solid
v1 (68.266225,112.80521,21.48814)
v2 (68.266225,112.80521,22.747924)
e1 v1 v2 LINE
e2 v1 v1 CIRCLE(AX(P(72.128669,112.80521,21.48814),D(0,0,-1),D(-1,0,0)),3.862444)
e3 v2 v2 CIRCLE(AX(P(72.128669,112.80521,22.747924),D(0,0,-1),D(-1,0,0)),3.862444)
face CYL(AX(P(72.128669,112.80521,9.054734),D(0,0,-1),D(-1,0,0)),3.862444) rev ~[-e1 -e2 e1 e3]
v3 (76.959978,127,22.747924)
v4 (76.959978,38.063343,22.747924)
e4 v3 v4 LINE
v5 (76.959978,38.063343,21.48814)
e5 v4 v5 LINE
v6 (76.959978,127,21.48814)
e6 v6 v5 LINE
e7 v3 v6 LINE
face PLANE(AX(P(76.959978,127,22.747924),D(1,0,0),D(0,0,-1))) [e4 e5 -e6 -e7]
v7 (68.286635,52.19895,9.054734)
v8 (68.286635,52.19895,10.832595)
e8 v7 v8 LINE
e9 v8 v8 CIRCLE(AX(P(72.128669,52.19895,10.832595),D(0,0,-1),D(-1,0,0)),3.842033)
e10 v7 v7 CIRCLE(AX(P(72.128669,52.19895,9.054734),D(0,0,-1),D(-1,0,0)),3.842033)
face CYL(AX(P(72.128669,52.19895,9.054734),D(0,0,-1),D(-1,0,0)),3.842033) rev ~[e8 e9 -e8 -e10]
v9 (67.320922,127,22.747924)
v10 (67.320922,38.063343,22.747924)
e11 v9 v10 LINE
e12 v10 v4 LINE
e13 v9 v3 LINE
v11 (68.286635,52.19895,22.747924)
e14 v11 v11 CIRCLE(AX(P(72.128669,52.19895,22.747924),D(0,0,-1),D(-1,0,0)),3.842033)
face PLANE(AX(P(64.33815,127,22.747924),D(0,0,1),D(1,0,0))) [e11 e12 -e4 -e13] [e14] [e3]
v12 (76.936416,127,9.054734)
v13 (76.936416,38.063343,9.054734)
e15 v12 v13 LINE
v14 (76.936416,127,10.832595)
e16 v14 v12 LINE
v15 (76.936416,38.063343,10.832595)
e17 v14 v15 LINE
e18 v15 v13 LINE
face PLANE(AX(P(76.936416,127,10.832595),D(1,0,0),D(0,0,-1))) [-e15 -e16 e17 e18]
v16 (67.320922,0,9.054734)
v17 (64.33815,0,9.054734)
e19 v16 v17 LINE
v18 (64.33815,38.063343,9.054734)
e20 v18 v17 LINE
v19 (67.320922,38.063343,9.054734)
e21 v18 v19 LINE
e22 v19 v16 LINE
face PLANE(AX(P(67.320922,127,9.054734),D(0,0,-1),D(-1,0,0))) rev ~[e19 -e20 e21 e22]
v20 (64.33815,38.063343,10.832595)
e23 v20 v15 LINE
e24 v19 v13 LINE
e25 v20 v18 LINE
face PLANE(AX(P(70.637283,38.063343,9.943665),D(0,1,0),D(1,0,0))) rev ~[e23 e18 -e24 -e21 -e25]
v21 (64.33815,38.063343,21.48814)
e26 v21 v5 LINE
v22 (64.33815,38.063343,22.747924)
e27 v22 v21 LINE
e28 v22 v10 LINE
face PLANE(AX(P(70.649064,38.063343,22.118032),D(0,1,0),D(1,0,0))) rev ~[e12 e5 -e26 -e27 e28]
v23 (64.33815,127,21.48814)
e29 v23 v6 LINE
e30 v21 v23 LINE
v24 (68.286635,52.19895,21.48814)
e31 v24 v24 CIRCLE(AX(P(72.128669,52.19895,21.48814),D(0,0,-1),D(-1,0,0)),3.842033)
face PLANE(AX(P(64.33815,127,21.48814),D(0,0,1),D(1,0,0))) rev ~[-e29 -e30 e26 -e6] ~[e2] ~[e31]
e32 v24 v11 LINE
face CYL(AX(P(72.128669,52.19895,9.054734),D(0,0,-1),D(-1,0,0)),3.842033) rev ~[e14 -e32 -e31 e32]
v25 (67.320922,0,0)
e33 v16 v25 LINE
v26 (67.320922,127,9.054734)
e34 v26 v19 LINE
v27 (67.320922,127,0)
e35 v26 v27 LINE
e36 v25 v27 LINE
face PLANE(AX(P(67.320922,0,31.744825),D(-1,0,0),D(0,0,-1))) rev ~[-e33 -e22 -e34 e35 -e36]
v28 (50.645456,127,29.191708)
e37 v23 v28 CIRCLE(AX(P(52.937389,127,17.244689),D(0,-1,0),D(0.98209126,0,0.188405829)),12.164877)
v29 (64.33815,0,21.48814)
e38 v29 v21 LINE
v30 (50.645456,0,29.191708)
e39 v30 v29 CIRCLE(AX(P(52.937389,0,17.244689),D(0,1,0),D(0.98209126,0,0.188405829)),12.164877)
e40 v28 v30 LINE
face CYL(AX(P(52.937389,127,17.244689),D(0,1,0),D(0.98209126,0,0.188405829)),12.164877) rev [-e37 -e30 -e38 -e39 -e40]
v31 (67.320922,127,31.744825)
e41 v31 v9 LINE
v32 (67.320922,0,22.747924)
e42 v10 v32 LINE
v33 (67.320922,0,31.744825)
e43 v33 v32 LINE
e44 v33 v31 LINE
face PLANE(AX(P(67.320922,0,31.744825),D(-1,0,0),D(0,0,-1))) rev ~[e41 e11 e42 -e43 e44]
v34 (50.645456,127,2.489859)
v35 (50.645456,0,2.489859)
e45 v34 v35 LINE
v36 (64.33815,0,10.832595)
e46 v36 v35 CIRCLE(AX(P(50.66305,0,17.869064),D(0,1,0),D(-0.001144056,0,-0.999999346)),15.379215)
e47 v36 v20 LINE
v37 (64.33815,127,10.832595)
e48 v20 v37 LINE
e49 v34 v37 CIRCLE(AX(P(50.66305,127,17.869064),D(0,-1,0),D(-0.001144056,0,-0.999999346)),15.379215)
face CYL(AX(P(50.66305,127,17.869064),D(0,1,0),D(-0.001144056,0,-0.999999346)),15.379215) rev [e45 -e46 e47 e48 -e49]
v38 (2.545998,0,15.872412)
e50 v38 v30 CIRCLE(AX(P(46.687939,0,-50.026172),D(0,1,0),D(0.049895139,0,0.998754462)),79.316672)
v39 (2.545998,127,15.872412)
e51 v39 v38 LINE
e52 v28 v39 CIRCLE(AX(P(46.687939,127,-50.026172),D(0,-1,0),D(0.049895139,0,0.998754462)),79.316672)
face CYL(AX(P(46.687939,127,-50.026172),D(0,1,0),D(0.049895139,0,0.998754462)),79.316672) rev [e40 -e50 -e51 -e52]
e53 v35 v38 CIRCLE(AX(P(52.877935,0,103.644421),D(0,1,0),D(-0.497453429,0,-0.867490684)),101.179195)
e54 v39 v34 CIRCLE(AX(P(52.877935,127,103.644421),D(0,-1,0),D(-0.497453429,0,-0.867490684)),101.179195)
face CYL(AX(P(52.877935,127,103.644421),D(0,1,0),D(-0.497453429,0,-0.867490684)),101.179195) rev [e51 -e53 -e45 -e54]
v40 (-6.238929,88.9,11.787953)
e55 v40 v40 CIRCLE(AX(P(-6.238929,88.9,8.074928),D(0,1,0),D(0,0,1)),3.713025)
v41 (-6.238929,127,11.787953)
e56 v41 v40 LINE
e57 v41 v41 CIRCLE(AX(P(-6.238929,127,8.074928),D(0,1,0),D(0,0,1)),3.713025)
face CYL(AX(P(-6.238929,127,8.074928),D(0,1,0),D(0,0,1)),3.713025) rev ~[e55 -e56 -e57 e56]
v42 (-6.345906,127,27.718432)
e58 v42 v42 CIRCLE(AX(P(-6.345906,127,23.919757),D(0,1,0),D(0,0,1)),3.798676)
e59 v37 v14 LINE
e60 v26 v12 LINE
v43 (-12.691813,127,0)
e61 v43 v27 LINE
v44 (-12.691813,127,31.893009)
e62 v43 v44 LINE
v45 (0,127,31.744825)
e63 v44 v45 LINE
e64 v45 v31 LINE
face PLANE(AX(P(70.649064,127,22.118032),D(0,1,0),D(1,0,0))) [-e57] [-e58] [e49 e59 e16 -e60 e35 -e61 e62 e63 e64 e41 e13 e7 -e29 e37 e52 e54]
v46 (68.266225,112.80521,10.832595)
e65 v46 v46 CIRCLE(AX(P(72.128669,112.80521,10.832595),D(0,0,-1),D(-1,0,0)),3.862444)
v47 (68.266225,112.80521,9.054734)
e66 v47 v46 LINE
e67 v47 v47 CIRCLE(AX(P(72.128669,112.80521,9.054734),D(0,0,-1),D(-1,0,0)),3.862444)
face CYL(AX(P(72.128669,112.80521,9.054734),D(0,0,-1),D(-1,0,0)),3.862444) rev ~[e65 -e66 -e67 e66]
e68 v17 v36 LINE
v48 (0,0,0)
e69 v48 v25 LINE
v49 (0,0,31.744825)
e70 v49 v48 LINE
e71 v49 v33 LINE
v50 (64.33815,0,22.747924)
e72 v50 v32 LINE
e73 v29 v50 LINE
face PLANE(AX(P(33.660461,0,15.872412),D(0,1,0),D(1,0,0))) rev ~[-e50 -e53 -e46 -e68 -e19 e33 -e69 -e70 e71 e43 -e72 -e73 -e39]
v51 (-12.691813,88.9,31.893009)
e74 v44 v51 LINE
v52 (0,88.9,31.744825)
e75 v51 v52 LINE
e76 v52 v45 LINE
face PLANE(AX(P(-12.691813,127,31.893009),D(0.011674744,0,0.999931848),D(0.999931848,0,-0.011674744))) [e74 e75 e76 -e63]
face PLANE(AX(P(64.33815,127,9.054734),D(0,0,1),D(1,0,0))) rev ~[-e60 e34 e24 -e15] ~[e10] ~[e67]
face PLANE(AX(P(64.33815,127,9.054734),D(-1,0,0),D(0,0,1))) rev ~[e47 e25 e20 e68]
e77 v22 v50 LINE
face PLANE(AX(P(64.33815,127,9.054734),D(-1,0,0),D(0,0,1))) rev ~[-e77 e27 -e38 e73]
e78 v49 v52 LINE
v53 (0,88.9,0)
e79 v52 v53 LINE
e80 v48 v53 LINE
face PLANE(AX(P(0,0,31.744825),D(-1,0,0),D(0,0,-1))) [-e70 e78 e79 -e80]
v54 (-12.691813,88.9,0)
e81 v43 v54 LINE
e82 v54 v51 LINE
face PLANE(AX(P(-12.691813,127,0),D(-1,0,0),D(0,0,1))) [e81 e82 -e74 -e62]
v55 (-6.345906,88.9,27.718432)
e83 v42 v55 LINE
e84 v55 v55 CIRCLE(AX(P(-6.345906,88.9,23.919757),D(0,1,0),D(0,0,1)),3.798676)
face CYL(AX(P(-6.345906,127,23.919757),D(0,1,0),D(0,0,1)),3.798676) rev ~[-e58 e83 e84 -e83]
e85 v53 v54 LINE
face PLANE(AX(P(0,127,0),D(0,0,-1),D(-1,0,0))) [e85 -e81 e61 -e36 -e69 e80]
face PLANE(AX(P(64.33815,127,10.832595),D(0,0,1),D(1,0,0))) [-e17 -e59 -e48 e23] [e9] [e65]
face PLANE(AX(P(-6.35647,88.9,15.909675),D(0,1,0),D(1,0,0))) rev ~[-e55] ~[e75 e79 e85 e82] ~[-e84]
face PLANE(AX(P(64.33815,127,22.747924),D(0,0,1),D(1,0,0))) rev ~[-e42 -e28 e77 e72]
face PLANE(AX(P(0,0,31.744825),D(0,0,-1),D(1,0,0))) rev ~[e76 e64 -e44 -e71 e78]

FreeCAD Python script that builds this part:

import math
import FreeCAD as App
import Part
import Sketcher

V = App.Vector
Q = App.Units.Quantity


def add_polygon(sketch, points):
    """Adds a closed chain of lines whose ends are joined by coincident constraints."""
    first, n = sketch.GeometryCount, len(points)
    for a, b in zip(points, points[1:] + points[:1]):
        sketch.addGeometry(Part.LineSegment(App.Vector(*a, 0), App.Vector(*b, 0)), False)
    for i in range(n):
        sketch.addConstraint(Sketcher.Constraint("Coincident", first + i, 2, first + (i + 1) % n, 1))

doc = App.newDocument("Part")
body = doc.addObject("PartDesign::Body", "Body")

# Sketch on XZ plane
sketch1 = body.newObject("Sketcher::SketchObject", "Sketch")
sketch1.AttachmentSupport = (doc.getObject("XZ_Plane"), [""])
sketch1.MapMode = "FlatFace"
add_polygon(sketch1, [(0, 0), (0, 31.744825), (67.320922, 31.744825), (67.320922, 0)])  # lines 0-3
sketch1.addConstraint([
    Sketcher.Constraint("Vertical", 0),
    Sketcher.Constraint("Horizontal", 1),
    Sketcher.Constraint("Vertical", 2),
    Sketcher.Constraint("Horizontal", 3),
    Sketcher.Constraint("Coincident", 3, 2, -1, 1),
    Sketcher.Constraint("DistanceX", 1, 1, 1, 2, 67.320922),
    Sketcher.Constraint("DistanceY", 0, 1, 0, 2, 31.744825),
])
pad1 = body.newObject("PartDesign::Pad", "Pad")
pad1.Profile = sketch1
pad1.Length = Q("5 in")
pad1.Reversed = True

# Sketch on XZ plane
sketch2 = body.newObject("Sketcher::SketchObject", "Sketch001")
sketch2.AttachmentSupport = (doc.getObject("XZ_Plane"), [""])
sketch2.MapMode = "FlatFace"
sketch2.AttachmentOffset = App.Placement(V(0, 0, -5 * 25.4), App.Rotation())
add_polygon(sketch2, [(0, 0), (-12.691813, 0), (-12.691813, 31.893009), (0, 31.744825)])  # lines 0-3
sketch2.addConstraint([
    Sketcher.Constraint("Horizontal", 0),
    Sketcher.Constraint("Vertical", 1),
    Sketcher.Constraint("Vertical", 3),
    Sketcher.Constraint("Coincident", 3, 2, -1, 1),
    Sketcher.Constraint("DistanceY", 1, 1, 1, 2, 31.893009),
    Sketcher.Constraint("DistanceX", 0, 2, 0, 1, 12.691813),
    Sketcher.Constraint("DistanceY", 3, 2, 3, 1, 31.744825),
])
pad2 = body.newObject("PartDesign::Pad", "Pad001")
pad2.Profile = sketch2
pad2.Length = Q("1.5 in")

# Sketch on XZ plane
sketch3 = body.newObject("Sketcher::SketchObject", "Sketch002")
sketch3.AttachmentSupport = (doc.getObject("XZ_Plane"), [""])
sketch3.MapMode = "FlatFace"
sketch3.AttachmentOffset = App.Placement(V(0, 0, -5 * 25.4), App.Rotation())
sketch3.addGeometry(Part.Circle(V(-6.345906, 23.919757, 0), V(0, 0, 1), 3.798676), False)
sketch3.addConstraint([
    Sketcher.Constraint("Diameter", 0, 7.597351),
    Sketcher.Constraint("DistanceX", 0, 3, -1, 1, 6.345906),
    Sketcher.Constraint("DistanceY", -1, 1, 0, 3, 23.919757),
])
pocket1 = body.newObject("PartDesign::Pocket", "Pocket")
pocket1.Profile = sketch3
pocket1.Length = Q("2.1 in")
pocket1.Reversed = True

# Sketch on XZ plane
sketch4 = body.newObject("Sketcher::SketchObject", "Sketch003")
sketch4.AttachmentSupport = (doc.getObject("XZ_Plane"), [""])
sketch4.MapMode = "FlatFace"
sketch4.AttachmentOffset = App.Placement(V(0, 0, -5 * 25.4), App.Rotation())
sketch4.addGeometry(Part.Circle(V(-6.238929, 8.074928, 0), V(0, 0, 1), 3.713025), False)
sketch4.addConstraint([
    Sketcher.Constraint("Diameter", 0, 7.426051),
    Sketcher.Constraint("DistanceX", 0, 3, -1, 1, 6.238929),
    Sketcher.Constraint("DistanceY", -1, 1, 0, 3, 8.074928),
])
pocket2 = body.newObject("PartDesign::Pocket", "Pocket001")
pocket2.Profile = sketch4
pocket2.Length = Q("2.87 in")
pocket2.Reversed = True

# Sketch on XZ plane
sketch5 = body.newObject("Sketcher::SketchObject", "Sketch004")
sketch5.AttachmentSupport = (doc.getObject("XZ_Plane"), [""])
sketch5.MapMode = "FlatFace"
sketch5.AttachmentOffset = App.Placement(V(0, 0, -5 * 25.4), App.Rotation())
sketch5.addGeometry([
    Part.ArcOfCircle(Part.Circle(V(49.506454, 15.775676, 0), V(0, 0, 1), 15.831179), math.radians(-13.742914), math.radians(13.742914)),  # 0
    Part.ArcOfCircle(Part.Circle(V(50.66305, 17.869064, 0), V(0, 0, 1), 15.379215), math.radians(-90.06555), math.radians(-22.374899)),  # 1
    Part.ArcOfCircle(Part.Circle(V(52.877935, 103.644421, 0), V(0, 0, 1), 101.179195), math.radians(-119.831663), math.radians(-91.264312)),  # 2
    Part.ArcOfCircle(Part.Circle(V(46.687939, -50.026172, 0), V(0, 0, 1), 79.316672), math.radians(87.140032), math.radians(123.816018)),  # 3
    Part.ArcOfCircle(Part.Circle(V(52.937389, 17.244689, 0), V(0, 0, 1), 12.164877), math.radians(10.859765), math.radians(100.859765)),  # 4
], False)
sketch5.addConstraint([
    Sketcher.Constraint("Coincident", 0, 1, 1, 2),
    Sketcher.Constraint("Coincident", 1, 1, 2, 2),
    Sketcher.Constraint("Coincident", 2, 1, 3, 2),
    Sketcher.Constraint("Coincident", 3, 1, 4, 2),
    Sketcher.Constraint("Coincident", 4, 1, 0, 2),
    Sketcher.Constraint("Vertical", 1, 1, 3, 1),
    Sketcher.Constraint("Vertical", 0, 1, 4, 1),
    Sketcher.Constraint("Radius", 0, 15.831179),
    Sketcher.Constraint("Radius", 3, 79.316672),
    Sketcher.Constraint("Radius", 1, 15.379215),
    Sketcher.Constraint("Radius", 2, 101.179195),
    Sketcher.Constraint("Radius", 4, 12.164877),
    Sketcher.Constraint("DistanceX", 1, 3, 2, 3, Q("0.0872002 in")),
    Sketcher.Constraint("DistanceX", -1, 1, 2, 1, 2.545998),
    Sketcher.Constraint("DistanceX", -1, 1, 1, 3, 50.66305),
    Sketcher.Constraint("DistanceY", -1, 1, 2, 3, 103.644421),
    Sketcher.Constraint("DistanceX", -1, 1, 3, 3, 46.687939),
    Sketcher.Constraint("DistanceX", -1, 1, 4, 3, 52.937389),
    Sketcher.Constraint("DistanceY", -1, 1, 4, 3, 17.244689),
    Sketcher.Constraint("DistanceX", -1, 1, 0, 1, 64.884409),
])
pocket3 = body.newObject("PartDesign::Pocket", "Pocket002")
pocket3.Profile = sketch5
pocket3.Length = Q("7 in")
pocket3.Reversed = True

# Sketch on XZ plane
sketch6 = body.newObject("Sketcher::SketchObject", "Sketch005")
sketch6.AttachmentSupport = (doc.getObject("XZ_Plane"), [""])
sketch6.MapMode = "FlatFace"
sketch6.AttachmentOffset = App.Placement(V(0, 0, -5 * 25.4), App.Rotation())
add_polygon(sketch6, [(64.33815, 22.747924), (67.320922, 22.747924), (67.320922, 9.054734), (64.33815, 9.054734)])  # lines 0-3
sketch6.addConstraint([
    Sketcher.Constraint("Horizontal", 0),
    Sketcher.Constraint("Vertical", 1),
    Sketcher.Constraint("Horizontal", 2),
    Sketcher.Constraint("Vertical", 3),
    Sketcher.Constraint("DistanceX", 0, 1, 0, 2, 2.982772),
    Sketcher.Constraint("DistanceY", 1, 2, 1, 1, 13.693189),
    Sketcher.Constraint("DistanceX", -1, 1, 0, 2, 67.320922),
    Sketcher.Constraint("DistanceY", -1, 1, 0, 2, 22.747924),
])
pocket4 = body.newObject("PartDesign::Pocket", "Pocket003")
pocket4.Profile = sketch6
pocket4.Length = 140.752657
pocket4.Reversed = True

# Sketch on XZ plane
sketch7 = body.newObject("Sketcher::SketchObject", "Sketch006")
sketch7.AttachmentSupport = (doc.getObject("XZ_Plane"), [""])
sketch7.MapMode = "FlatFace"
sketch7.AttachmentOffset = App.Placement(V(0, 0, -5 * 25.4), App.Rotation())
add_polygon(sketch7, [(64.33815, 9.054734), (64.33815, 10.832595), (76.936416, 10.832595), (76.936416, 9.054734)])  # lines 0-3
sketch7.addConstraint([
    Sketcher.Constraint("Vertical", 0),
    Sketcher.Constraint("Horizontal", 1),
    Sketcher.Constraint("Vertical", 2),
    Sketcher.Constraint("Horizontal", 3),
    Sketcher.Constraint("DistanceY", 0, 1, 0, 2, 1.777861),
    Sketcher.Constraint("DistanceX", 1, 1, 1, 2, 12.598265),
    Sketcher.Constraint("DistanceX", -1, 1, 0, 2, 64.33815),
    Sketcher.Constraint("DistanceY", -1, 1, 0, 2, 10.832595),
])
pad3 = body.newObject("PartDesign::Pad", "Pad002")
pad3.Profile = sketch7
pad3.Length = 88.936657

# Sketch on XZ plane
sketch8 = body.newObject("Sketcher::SketchObject", "Sketch007")
sketch8.AttachmentSupport = (doc.getObject("XZ_Plane"), [""])
sketch8.MapMode = "FlatFace"
sketch8.AttachmentOffset = App.Placement(V(0, 0, -5 * 25.4), App.Rotation())
add_polygon(sketch8, [(64.33815, 21.48814), (64.33815, 22.747924), (76.959978, 22.747924), (76.959978, 21.48814)])  # lines 0-3
sketch8.addConstraint([
    Sketcher.Constraint("Vertical", 0),
    Sketcher.Constraint("Horizontal", 1),
    Sketcher.Constraint("Vertical", 2),
    Sketcher.Constraint("Horizontal", 3),
    Sketcher.Constraint("DistanceX", 1, 1, 1, 2, 12.621827),
    Sketcher.Constraint("DistanceY", 0, 1, 0, 2, 1.259783),
    Sketcher.Constraint("DistanceX", -1, 1, 0, 2, 64.33815),
    Sketcher.Constraint("DistanceY", -1, 1, 2, 2, 21.48814),
])
pad4 = body.newObject("PartDesign::Pad", "Pad003")
pad4.Profile = sketch8
pad4.Length = 88.936657

# Sketch on XY plane
sketch9 = body.newObject("Sketcher::SketchObject", "Sketch008")
sketch9.AttachmentSupport = (doc.getObject("XY_Plane"), [""])
sketch9.MapMode = "FlatFace"
sketch9.AttachmentOffset = App.Placement(V(0, 0, 9.054734), App.Rotation())
sketch9.addGeometry(Part.Circle(V(72.128669, 112.80521, 0), V(0, 0, 1), 3.862444), False)
sketch9.addConstraint([
    Sketcher.Constraint("Diameter", 0, 7.724887),
    Sketcher.Constraint("DistanceX", -1, 1, 0, 3, 72.128669),
    Sketcher.Constraint("DistanceY", -1, 1, 0, 3, 112.80521),
])
pocket5 = body.newObject("PartDesign::Pocket", "Pocket004")
pocket5.Profile = sketch9
pocket5.Length = 31.278657
pocket5.Reversed = True

# Sketch on XY plane
sketch10 = body.newObject("Sketcher::SketchObject", "Sketch009")
sketch10.AttachmentSupport = (doc.getObject("XY_Plane"), [""])
sketch10.MapMode = "FlatFace"
sketch10.AttachmentOffset = App.Placement(V(0, 0, 9.054734), App.Rotation())
sketch10.addGeometry(Part.Circle(V(72.128669, 52.19895, 0), V(0, 0, 1), 3.842033), False)
sketch10.addConstraint([
    Sketcher.Constraint("Diameter", 0, 7.684067),
    Sketcher.Constraint("DistanceX", -1, 1, 0, 3, 72.128669),
    Sketcher.Constraint("DistanceY", -1, 1, 0, 3, 52.19895),
])
pocket6 = body.newObject("PartDesign::Pocket", "Pocket005")
pocket6.Profile = sketch10
pocket6.Length = 32.548657
pocket6.Reversed = True

doc.recompute()
